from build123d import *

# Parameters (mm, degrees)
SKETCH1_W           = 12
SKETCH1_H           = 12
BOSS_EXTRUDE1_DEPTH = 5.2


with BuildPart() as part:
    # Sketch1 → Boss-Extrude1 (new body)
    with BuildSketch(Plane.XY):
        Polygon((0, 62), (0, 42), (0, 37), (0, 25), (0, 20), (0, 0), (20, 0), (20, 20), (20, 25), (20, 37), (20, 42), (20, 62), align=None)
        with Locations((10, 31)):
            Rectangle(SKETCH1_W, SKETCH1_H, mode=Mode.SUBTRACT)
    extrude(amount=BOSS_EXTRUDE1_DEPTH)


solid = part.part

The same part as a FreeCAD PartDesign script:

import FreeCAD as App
import Part
import Sketcher
from FreeCAD import Vector


def add_polygon(sketch, points):
    """Adds a closed chain of lines whose ends are joined by coincident constraints."""
    first, n = sketch.GeometryCount, len(points)
    for a, b in zip(points, points[1:] + points[:1]):
        sketch.addGeometry(Part.LineSegment(App.Vector(*a, 0), App.Vector(*b, 0)), False)
    for i in range(n):
        sketch.addConstraint(Sketcher.Constraint("Coincident", first + i, 2, first + (i + 1) % n, 1))

doc = App.newDocument("Part")
params = doc.addObject("Spreadsheet::Sheet", "Params")
for row, (alias, value) in enumerate([
    ("sketch1_width", "20 mm"),
    ("sketch1_width2", "12 mm"),
    ("sketch1_height", "62 mm"),
    ("pad1_length", "5.2 mm"),
], start=1):
    params.set(f"A{row}", alias)
    params.set(f"B{row}", "=" + value)
    params.setAlias(f"B{row}", alias)

body = doc.addObject("PartDesign::Body", "Body")

# Sketch on XY plane
sketch1 = body.newObject("Sketcher::SketchObject", "Sketch")
sketch1.AttachmentSupport = (doc.getObject("XY_Plane"), [""])
sketch1.MapMode = "FlatFace"
add_polygon(sketch1, [(0, 62), (0, 0), (20, 0), (20, 62)])  # lines 0-3
add_polygon(sketch1, [(16, 25), (4, 25), (4, 37), (16, 37)])  # lines 4-7
sketch1.addConstraint([
    Sketcher.Constraint("Vertical", 0),
    Sketcher.Constraint("Horizontal", 1),
    Sketcher.Constraint("Vertical", 2),
    Sketcher.Constraint("Horizontal", 3),
    Sketcher.Constraint("Horizontal", 4),
    Sketcher.Constraint("Vertical", 5),
    Sketcher.Constraint("Horizontal", 6),
    Sketcher.Constraint("Vertical", 7),
    Sketcher.Constraint("Coincident", 0, 2, -1, 1),
    Sketcher.Constraint("Equal", 6, 5),
    Sketcher.Constraint("DistanceX", 1, 1, 1, 2, 20.0),
    Sketcher.Constraint("DistanceX", 4, 2, 4, 1, 12.0),
    Sketcher.Constraint("DistanceY", 0, 2, 0, 1, 62.0),
    Sketcher.Constraint("DistanceX", -1, 1, 4, 2, 4.0),
    Sketcher.Constraint("DistanceY", -1, 1, 4, 2, 25.0),
])
sketch1.setExpression("Constraints[18]", "Params.sketch1_width")
sketch1.setExpression("Constraints[19]", "Params.sketch1_width2")
sketch1.setExpression("Constraints[20]", "Params.sketch1_height")
pad1 = body.newObject("PartDesign::Pad", "Pad")
pad1.Profile = sketch1
pad1.setExpression("Length", "Params.pad1_length")

doc.recompute()
